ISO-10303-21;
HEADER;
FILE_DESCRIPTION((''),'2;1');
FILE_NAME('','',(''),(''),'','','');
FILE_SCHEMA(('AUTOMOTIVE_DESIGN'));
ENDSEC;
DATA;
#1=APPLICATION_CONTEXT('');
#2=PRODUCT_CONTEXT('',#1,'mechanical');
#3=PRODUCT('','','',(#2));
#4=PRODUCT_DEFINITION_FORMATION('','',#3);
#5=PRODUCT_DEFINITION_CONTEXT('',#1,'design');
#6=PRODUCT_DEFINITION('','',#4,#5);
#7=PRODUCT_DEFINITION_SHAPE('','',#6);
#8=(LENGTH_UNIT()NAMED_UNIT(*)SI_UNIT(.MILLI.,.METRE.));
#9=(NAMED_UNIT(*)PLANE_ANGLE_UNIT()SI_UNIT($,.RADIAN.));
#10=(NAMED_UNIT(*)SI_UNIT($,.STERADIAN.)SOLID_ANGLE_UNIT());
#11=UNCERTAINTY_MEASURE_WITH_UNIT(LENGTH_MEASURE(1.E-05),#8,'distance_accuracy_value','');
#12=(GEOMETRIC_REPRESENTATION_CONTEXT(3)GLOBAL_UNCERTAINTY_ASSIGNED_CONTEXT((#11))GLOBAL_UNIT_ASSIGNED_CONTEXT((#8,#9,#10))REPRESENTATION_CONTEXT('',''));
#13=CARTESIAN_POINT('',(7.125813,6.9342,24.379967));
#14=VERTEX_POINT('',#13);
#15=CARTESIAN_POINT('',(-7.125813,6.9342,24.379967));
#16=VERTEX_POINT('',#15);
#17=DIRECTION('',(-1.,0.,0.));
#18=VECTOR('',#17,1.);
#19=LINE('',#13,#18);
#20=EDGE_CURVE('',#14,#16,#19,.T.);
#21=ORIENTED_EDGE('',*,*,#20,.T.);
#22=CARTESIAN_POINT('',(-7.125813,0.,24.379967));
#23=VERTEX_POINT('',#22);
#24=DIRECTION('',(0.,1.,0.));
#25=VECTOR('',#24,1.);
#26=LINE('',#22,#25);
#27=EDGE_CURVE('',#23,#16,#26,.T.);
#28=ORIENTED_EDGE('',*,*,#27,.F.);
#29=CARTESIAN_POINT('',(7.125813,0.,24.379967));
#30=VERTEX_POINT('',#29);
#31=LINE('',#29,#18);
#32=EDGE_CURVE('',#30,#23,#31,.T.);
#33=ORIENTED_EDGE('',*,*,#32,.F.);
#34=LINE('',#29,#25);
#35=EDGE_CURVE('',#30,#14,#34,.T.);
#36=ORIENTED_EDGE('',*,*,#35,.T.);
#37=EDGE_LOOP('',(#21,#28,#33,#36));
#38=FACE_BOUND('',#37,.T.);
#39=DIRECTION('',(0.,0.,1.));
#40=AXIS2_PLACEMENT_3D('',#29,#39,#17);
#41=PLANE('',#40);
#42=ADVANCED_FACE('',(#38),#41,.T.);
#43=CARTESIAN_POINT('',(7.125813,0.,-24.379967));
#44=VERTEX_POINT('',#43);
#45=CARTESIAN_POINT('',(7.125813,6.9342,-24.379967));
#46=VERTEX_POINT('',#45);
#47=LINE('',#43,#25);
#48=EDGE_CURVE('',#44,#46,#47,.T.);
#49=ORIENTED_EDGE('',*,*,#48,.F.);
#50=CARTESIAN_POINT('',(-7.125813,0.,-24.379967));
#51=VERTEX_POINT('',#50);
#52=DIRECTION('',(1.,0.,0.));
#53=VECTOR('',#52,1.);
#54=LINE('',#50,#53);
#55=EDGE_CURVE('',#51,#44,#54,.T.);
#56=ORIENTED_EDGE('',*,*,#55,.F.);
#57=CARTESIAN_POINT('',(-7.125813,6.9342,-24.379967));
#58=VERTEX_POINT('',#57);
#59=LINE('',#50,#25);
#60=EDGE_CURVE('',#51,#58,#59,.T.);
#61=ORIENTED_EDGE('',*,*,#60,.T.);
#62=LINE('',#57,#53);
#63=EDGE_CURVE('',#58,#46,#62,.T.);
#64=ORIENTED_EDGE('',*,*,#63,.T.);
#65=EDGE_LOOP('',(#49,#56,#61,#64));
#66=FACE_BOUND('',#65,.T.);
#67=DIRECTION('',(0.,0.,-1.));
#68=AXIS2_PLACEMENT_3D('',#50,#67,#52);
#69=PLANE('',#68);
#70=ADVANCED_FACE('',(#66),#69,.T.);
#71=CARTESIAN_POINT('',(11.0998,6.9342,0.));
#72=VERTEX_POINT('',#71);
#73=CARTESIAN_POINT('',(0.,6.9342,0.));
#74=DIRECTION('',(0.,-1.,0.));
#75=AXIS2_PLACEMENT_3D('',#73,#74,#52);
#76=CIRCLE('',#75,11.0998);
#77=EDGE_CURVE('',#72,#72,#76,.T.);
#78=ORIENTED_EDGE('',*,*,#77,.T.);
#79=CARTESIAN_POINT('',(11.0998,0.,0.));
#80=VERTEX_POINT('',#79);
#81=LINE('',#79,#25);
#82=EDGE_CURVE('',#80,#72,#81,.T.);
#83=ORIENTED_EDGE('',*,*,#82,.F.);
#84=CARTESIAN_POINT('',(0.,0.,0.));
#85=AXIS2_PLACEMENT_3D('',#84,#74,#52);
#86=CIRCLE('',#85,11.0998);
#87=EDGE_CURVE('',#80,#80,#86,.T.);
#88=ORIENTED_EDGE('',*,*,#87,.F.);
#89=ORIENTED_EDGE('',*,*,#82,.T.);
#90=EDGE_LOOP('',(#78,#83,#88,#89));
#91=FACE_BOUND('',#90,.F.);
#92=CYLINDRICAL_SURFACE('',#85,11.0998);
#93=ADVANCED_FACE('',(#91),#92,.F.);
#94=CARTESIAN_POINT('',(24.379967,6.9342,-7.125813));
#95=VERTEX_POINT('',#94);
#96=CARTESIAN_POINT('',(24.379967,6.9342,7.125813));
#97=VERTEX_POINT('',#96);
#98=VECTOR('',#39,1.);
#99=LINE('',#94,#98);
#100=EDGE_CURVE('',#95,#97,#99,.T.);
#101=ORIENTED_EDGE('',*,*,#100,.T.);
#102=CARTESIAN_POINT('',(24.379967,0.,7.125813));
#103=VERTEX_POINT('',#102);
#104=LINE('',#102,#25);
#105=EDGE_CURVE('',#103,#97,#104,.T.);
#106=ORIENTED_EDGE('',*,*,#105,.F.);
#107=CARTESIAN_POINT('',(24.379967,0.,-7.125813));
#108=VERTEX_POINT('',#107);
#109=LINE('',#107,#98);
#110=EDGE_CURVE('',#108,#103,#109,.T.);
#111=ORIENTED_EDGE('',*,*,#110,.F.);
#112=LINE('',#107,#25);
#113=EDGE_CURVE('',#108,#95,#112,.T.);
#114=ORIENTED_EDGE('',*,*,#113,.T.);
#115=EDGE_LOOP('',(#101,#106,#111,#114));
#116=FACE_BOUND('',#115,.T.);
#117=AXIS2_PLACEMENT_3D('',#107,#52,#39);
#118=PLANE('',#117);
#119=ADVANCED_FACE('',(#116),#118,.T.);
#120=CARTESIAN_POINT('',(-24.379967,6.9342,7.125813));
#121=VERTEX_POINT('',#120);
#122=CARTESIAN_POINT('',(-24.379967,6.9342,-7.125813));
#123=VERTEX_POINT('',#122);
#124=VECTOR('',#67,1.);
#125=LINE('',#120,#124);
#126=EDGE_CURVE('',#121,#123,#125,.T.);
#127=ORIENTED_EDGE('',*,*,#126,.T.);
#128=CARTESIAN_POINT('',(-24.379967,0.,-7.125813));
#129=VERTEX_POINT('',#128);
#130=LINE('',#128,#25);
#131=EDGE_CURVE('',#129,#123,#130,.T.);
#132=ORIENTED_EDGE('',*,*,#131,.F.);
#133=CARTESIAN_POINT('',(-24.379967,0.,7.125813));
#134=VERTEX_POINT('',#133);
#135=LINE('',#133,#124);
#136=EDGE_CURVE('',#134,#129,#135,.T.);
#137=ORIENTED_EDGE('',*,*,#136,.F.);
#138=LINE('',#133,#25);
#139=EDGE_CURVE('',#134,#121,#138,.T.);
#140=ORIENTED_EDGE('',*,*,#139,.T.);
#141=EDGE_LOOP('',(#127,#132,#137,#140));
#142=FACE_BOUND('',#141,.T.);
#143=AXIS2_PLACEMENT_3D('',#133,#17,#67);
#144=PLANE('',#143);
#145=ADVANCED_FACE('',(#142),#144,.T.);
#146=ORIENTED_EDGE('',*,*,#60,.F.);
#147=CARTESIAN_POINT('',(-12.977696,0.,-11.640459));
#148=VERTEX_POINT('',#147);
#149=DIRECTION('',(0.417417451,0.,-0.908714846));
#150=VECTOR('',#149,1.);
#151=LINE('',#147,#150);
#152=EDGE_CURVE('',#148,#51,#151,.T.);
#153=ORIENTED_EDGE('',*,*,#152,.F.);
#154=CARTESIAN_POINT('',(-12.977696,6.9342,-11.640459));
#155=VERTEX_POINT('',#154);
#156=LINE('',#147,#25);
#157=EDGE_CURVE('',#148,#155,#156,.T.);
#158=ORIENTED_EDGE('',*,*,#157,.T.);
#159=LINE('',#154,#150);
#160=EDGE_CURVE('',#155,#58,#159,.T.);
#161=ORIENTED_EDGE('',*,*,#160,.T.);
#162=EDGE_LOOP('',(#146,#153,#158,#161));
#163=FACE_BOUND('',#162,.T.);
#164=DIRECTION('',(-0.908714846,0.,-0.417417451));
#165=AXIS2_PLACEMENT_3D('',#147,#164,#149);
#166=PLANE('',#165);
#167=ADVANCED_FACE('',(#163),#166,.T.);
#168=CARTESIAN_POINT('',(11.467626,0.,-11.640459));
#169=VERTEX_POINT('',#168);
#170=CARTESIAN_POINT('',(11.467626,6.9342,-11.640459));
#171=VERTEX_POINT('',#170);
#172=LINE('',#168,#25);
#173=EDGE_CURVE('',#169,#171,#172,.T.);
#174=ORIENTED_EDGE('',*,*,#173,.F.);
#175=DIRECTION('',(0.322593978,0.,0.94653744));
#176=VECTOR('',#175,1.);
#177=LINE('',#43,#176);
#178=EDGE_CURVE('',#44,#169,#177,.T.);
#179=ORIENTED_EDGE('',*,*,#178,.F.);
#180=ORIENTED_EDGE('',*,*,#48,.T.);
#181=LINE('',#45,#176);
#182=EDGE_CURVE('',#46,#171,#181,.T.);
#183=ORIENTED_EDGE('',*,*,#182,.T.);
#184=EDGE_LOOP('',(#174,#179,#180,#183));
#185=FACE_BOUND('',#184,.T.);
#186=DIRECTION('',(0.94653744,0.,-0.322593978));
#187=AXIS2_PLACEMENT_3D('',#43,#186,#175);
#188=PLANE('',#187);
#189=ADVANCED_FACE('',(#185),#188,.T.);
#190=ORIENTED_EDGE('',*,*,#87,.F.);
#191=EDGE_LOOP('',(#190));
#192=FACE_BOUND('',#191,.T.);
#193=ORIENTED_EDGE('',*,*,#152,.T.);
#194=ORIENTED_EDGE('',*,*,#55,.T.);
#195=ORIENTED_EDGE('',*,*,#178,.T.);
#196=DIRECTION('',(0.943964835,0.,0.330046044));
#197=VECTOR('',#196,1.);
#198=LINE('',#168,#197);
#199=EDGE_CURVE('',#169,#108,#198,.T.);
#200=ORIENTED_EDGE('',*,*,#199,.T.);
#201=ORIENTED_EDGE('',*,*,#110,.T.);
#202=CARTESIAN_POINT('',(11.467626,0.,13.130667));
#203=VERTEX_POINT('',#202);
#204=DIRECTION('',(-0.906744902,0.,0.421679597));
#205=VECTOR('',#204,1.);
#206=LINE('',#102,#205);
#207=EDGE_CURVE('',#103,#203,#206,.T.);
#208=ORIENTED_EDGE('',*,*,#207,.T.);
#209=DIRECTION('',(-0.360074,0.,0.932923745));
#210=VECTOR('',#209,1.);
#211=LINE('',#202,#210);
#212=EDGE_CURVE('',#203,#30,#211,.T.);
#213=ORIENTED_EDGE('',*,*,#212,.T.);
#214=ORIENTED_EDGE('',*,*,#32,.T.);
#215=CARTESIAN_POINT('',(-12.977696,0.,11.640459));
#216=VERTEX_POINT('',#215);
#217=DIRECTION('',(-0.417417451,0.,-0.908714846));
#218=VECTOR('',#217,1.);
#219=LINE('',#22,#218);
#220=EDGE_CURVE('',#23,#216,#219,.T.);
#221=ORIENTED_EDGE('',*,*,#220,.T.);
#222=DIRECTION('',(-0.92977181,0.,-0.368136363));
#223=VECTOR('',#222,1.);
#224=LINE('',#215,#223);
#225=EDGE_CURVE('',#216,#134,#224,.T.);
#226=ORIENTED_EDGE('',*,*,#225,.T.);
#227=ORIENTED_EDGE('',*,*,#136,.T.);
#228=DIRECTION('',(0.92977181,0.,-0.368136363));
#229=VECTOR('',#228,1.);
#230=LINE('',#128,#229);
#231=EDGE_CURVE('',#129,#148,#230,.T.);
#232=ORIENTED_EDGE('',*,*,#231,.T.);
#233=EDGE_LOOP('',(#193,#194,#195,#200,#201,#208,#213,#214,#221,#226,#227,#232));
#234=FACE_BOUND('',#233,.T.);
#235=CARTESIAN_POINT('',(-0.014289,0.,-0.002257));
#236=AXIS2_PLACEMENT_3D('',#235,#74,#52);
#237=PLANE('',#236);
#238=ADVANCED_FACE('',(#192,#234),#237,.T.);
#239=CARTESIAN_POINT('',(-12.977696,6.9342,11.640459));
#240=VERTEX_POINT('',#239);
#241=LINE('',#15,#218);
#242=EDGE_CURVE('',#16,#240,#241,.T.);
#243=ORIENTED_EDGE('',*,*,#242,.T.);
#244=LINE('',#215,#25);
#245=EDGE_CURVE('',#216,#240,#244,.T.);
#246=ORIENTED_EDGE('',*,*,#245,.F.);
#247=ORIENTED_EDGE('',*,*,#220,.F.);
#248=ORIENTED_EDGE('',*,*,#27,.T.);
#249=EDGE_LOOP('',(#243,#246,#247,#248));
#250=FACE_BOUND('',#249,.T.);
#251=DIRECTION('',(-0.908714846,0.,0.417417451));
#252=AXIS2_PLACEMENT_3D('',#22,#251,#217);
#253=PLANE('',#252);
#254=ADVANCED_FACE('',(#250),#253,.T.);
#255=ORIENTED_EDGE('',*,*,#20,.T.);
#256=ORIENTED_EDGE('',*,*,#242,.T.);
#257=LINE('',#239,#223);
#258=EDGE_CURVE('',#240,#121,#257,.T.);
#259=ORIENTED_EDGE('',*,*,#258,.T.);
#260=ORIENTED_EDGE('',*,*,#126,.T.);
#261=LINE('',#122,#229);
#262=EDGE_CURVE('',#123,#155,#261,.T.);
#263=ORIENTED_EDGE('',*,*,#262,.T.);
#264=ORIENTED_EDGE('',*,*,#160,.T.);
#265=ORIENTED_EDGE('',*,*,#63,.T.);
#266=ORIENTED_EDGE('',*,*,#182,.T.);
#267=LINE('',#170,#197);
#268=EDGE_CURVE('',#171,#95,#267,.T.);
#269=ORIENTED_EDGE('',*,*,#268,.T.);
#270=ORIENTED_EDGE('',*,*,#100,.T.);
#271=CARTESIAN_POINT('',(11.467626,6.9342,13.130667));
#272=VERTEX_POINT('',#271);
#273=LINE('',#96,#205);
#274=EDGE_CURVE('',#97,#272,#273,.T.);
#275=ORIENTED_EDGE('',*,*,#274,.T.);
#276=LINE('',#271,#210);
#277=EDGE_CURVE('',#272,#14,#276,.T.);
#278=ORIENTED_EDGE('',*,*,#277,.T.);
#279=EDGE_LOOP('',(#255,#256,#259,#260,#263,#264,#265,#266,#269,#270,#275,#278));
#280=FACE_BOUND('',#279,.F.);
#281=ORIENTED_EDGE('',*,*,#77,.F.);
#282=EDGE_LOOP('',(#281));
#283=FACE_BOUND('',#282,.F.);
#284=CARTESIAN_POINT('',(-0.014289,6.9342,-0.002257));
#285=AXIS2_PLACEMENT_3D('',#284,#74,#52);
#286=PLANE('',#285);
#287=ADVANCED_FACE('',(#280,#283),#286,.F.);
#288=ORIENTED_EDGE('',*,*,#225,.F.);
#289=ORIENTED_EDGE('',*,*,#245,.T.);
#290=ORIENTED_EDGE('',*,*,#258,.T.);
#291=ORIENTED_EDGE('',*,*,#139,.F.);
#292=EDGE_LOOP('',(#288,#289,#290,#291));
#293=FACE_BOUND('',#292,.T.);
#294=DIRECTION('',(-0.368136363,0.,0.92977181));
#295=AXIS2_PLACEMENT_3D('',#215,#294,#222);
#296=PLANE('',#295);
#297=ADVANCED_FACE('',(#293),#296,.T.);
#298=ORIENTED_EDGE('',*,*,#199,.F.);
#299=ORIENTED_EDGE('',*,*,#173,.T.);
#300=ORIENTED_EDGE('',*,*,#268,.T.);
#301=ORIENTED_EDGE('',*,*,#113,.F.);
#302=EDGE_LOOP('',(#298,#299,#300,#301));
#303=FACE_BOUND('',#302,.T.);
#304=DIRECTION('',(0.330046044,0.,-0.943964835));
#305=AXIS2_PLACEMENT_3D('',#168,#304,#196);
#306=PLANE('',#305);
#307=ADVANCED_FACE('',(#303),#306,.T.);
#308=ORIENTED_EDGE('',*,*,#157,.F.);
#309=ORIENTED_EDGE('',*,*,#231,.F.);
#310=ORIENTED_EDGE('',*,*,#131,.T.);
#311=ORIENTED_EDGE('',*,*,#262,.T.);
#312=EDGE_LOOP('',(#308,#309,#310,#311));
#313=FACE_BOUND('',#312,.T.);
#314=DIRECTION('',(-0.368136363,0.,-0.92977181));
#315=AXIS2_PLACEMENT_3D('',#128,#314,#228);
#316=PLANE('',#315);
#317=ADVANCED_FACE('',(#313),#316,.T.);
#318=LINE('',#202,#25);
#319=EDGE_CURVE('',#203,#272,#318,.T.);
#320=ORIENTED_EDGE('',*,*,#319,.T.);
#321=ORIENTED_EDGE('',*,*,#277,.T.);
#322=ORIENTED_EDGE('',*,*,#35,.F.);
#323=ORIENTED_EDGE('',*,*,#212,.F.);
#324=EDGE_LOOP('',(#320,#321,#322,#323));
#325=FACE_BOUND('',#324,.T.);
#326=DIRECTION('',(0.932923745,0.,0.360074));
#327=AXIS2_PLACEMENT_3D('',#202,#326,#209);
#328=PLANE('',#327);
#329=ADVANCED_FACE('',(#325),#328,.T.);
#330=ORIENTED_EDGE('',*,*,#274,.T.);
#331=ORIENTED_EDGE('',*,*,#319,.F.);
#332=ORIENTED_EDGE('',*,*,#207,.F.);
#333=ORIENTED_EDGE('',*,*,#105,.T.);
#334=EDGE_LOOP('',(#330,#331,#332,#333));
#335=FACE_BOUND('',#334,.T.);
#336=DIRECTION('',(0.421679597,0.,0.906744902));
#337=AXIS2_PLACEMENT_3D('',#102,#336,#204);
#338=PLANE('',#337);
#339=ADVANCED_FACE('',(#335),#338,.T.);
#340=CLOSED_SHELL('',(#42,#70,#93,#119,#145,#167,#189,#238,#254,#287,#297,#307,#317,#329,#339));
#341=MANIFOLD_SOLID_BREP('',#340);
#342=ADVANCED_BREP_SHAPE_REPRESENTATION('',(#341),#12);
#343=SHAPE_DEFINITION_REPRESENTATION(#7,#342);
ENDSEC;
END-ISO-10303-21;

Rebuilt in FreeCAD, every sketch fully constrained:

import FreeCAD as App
import Part
import Sketcher
from FreeCAD import Vector
Q = App.Units.Quantity

doc = App.newDocument("Part")
body = doc.addObject("PartDesign::Body", "Body")

sketch1 = doc.addObject("Sketcher::SketchObject", "Sketch")
body.addObject(sketch1)
sketch1.AttachmentSupport = (doc.XZ_Plane, [""])
sketch1.MapMode = "FlatFace"
sketch1.addGeometry(Part.LineSegment(Vector(7, 24, 0), Vector(-7, 24, 0)), False)
sketch1.addGeometry(Part.LineSegment(Vector(-7, 24, 0), Vector(-13, 12, 0)), False)
sketch1.addGeometry(Part.LineSegment(Vector(-13, 12, 0), Vector(-24, 7, 0)), False)
sketch1.addGeometry(Part.LineSegment(Vector(-24, 7, 0), Vector(-24, -7, 0)), False)
sketch1.addGeometry(Part.LineSegment(Vector(-24, -7, 0), Vector(-13, -12, 0)), False)
sketch1.addGeometry(Part.LineSegment(Vector(-13, -12, 0), Vector(-7, -24, 0)), False)
sketch1.addGeometry(Part.LineSegment(Vector(-7, -24, 0), Vector(7, -24, 0)), False)
sketch1.addGeometry(Part.LineSegment(Vector(7, -24, 0), Vector(11, -12, 0)), False)
sketch1.addGeometry(Part.LineSegment(Vector(11, -12, 0), Vector(24, -7, 0)), False)
sketch1.addGeometry(Part.LineSegment(Vector(24, -7, 0), Vector(24, 7, 0)), False)
sketch1.addGeometry(Part.LineSegment(Vector(24, 7, 0), Vector(11, 13, 0)), False)
sketch1.addGeometry(Part.LineSegment(Vector(11, 13, 0), Vector(7, 24, 0)), False)
sketch1.addGeometry(Part.Circle(Vector(0, 0, 0), Vector(0, 0, 1), 11), False)
sketch1.addConstraint(Sketcher.Constraint("Coincident", 0, 2, 1, 1))
sketch1.addConstraint(Sketcher.Constraint("Coincident", 1, 2, 2, 1))
sketch1.addConstraint(Sketcher.Constraint("Coincident", 2, 2, 3, 1))
sketch1.addConstraint(Sketcher.Constraint("Coincident", 3, 2, 4, 1))
sketch1.addConstraint(Sketcher.Constraint("Coincident", 4, 2, 5, 1))
sketch1.addConstraint(Sketcher.Constraint("Coincident", 5, 2, 6, 1))
sketch1.addConstraint(Sketcher.Constraint("Coincident", 6, 2, 7, 1))
sketch1.addConstraint(Sketcher.Constraint("Coincident", 7, 2, 8, 1))
sketch1.addConstraint(Sketcher.Constraint("Coincident", 8, 2, 9, 1))
sketch1.addConstraint(Sketcher.Constraint("Coincident", 9, 2, 10, 1))
sketch1.addConstraint(Sketcher.Constraint("Coincident", 10, 2, 11, 1))
sketch1.addConstraint(Sketcher.Constraint("Coincident", 11, 2, 0, 1))
sketch1.addConstraint(Sketcher.Constraint("Horizontal", 0))
sketch1.addConstraint(Sketcher.Constraint("Vertical", 3))
sketch1.addConstraint(Sketcher.Constraint("Horizontal", 6))
sketch1.addConstraint(Sketcher.Constraint("Vertical", 9))
sketch1.addConstraint(Sketcher.Constraint("Coincident", 12, 3, -1, 1))
sketch1.addConstraint(Sketcher.Constraint("Symmetric", 0, 2, 6, 2, -1, 1))
sketch1.addConstraint(Sketcher.Constraint("Symmetric", 2, 2, 8, 2, -1, 1))
sketch1.addConstraint(Sketcher.Constraint("Symmetric", 1, 2, 4, 2, -1))
sketch1.addConstraint(Sketcher.Constraint("Horizontal", 4, 2, 7, 2))
sketch1.addConstraint(Sketcher.Constraint("Horizontal", 3, 2, 8, 2))
sketch1.addConstraint(Sketcher.Constraint("Horizontal", 2, 2, 9, 2))
sketch1.addConstraint(Sketcher.Constraint("Vertical", 0, 2, 5, 2))
sketch1.addConstraint(Sketcher.Constraint("Vertical", 7, 2, 10, 2))
sketch1.addConstraint(Sketcher.Constraint("Vertical", 6, 2, 11, 2))
sketch1.addConstraint(Sketcher.Constraint("Equal", 6, 3))
sketch1.addConstraint(Sketcher.Constraint("Diameter", 12, Q("0.874 in")))
sketch1.addConstraint(Sketcher.Constraint("DistanceY", 10, 2, 0, 2, 11.2493))
sketch1.addConstraint(Sketcher.Constraint("Distance", 1, 14.019258))
sketch1.addConstraint(Sketcher.Constraint("DistanceX", 0, 2, 0, 1, 14.251626))
sketch1.addConstraint(Sketcher.Constraint("DistanceY", -1, 1, 1, 2, 11.640459))
sketch1.addConstraint(Sketcher.Constraint("DistanceY", 1, 2, 0, 2, 12.739508))
sketch1.addConstraint(Sketcher.Constraint("DistanceX", 2, 2, 1, 2, 11.402271))
sketch1.addConstraint(Sketcher.Constraint("DistanceX", 5, 2, 7, 2, 18.593439))
pad1 = doc.addObject("PartDesign::Pad", "Pad")
body.addObject(pad1)
pad1.Profile = sketch1
pad1.Length = Q("0.273 in")
pad1.Reversed = True

doc.recompute()
